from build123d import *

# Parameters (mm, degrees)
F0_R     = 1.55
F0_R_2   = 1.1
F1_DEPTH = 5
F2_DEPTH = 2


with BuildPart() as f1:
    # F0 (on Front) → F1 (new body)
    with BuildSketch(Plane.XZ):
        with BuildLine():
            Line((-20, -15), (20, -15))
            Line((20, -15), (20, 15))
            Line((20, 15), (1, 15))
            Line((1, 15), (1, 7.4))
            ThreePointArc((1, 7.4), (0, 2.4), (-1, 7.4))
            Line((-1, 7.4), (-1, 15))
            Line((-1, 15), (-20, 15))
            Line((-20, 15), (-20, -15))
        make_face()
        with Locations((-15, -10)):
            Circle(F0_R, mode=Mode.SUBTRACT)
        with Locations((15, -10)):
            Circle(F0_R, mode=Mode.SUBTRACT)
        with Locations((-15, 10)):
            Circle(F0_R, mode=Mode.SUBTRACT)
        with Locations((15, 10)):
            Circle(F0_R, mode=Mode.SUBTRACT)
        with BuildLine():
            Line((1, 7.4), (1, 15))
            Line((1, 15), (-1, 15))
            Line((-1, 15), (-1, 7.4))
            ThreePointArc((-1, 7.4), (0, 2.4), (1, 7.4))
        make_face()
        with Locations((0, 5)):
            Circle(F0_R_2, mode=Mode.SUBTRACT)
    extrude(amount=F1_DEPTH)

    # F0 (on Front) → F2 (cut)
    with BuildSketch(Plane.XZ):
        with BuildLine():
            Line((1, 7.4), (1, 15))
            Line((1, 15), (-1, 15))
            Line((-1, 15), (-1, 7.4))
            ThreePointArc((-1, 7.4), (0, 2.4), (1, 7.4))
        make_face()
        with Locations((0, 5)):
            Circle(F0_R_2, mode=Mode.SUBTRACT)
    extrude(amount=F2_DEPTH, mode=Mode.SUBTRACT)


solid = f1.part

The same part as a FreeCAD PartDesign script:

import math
import FreeCAD as App
import Part
import Sketcher
from FreeCAD import Vector
Q = App.Units.Quantity


def add_polygon(sketch, points):
    """Adds a closed chain of lines whose ends are joined by coincident constraints."""
    first, n = sketch.GeometryCount, len(points)
    for a, b in zip(points, points[1:] + points[:1]):
        sketch.addGeometry(Part.LineSegment(App.Vector(*a, 0), App.Vector(*b, 0)), False)
    for i in range(n):
        sketch.addConstraint(Sketcher.Constraint("Coincident", first + i, 2, first + (i + 1) % n, 1))

doc = App.newDocument("Part")
params = doc.addObject("Spreadsheet::Sheet", "Params")
for row, (alias, value) in enumerate([
    ("sketch1_diameter", "3.1 mm"),
    ("sketch1_diameter2", "2.2 mm"),
    ("sketch1_width", "40 mm"),
    ("sketch1_height", "30 mm"),
    ("pad1_length", "5 mm"),
    ("sketch2_diameter", "2.2 mm"),
    ("sketch2_radius", "2.6 mm"),
    ("sketch2_width", "2 mm"),
    ("sketch2_height", "7.6 mm"),
    ("pocket1_length", "2 mm"),
], start=1):
    params.set(f"A{row}", alias)
    params.set(f"B{row}", "=" + value)
    params.setAlias(f"B{row}", alias)

body = doc.addObject("PartDesign::Body", "Body")

# Sketch on XZ plane
sketch1 = body.newObject("Sketcher::SketchObject", "Sketch")
sketch1.AttachmentSupport = (doc.getObject("XZ_Plane"), [""])
sketch1.MapMode = "FlatFace"
add_polygon(sketch1, [(-20, -15), (20, -15), (20, 15), (-20, 15)])  # lines 0-3
sketch1.addGeometry(Part.Circle(Vector(-15, -10, 0), Vector(0, 0, 1), 1.55), False)  # 4
sketch1.addGeometry(Part.Circle(Vector(15, -10, 0), Vector(0, 0, 1), 1.55), False)  # 5
sketch1.addGeometry(Part.Circle(Vector(-15, 10, 0), Vector(0, 0, 1), 1.55), False)  # 6
sketch1.addGeometry(Part.Circle(Vector(0, 5, 0), Vector(0, 0, 1), 1.1), False)  # 7
sketch1.addGeometry(Part.Circle(Vector(15, 10, 0), Vector(0, 0, 1), 1.55), False)  # 8
sketch1.addConstraint(Sketcher.Constraint("Horizontal", 0))
sketch1.addConstraint(Sketcher.Constraint("Vertical", 1))
sketch1.addConstraint(Sketcher.Constraint("Horizontal", 2))
sketch1.addConstraint(Sketcher.Constraint("Vertical", 3))
sketch1.addConstraint(Sketcher.Constraint("Equal", 4, 5))
sketch1.addConstraint(Sketcher.Constraint("Equal", 5, 6))
sketch1.addConstraint(Sketcher.Constraint("Equal", 6, 8))
sketch1.addConstraint(Sketcher.Constraint("Symmetric", 5, 3, 6, 3, -1, 1))
sketch1.addConstraint(Sketcher.Constraint("Symmetric", 4, 3, 8, 3, -1, 1))
sketch1.addConstraint(Sketcher.Constraint("Symmetric", 0, 2, 2, 2, -1, 1))
sketch1.addConstraint(Sketcher.Constraint("Symmetric", 4, 3, 5, 3, -2))
sketch1.addConstraint(Sketcher.Constraint("PointOnObject", 7, 3, -2))
sketch1.addConstraint(Sketcher.Constraint("Diameter", 4, Q("3.1 mm")))
sketch1.addConstraint(Sketcher.Constraint("Diameter", 7, Q("2.2 mm")))
sketch1.addConstraint(Sketcher.Constraint("DistanceX", 0, 1, 0, 2, Q("40 mm")))
sketch1.addConstraint(Sketcher.Constraint("DistanceY", 1, 1, 1, 2, Q("30 mm")))
sketch1.addConstraint(Sketcher.Constraint("DistanceX", 4, 3, -1, 1, Q("15 mm")))
sketch1.addConstraint(Sketcher.Constraint("DistanceY", 4, 3, -1, 1, Q("10 mm")))
sketch1.addConstraint(Sketcher.Constraint("DistanceY", -1, 1, 7, 3, Q("5 mm")))
sketch1.setExpression("Constraints[16]", "Params.sketch1_diameter")
sketch1.setExpression("Constraints[17]", "Params.sketch1_diameter2")
sketch1.setExpression("Constraints[18]", "Params.sketch1_width")
sketch1.setExpression("Constraints[19]", "Params.sketch1_height")
pad1 = body.newObject("PartDesign::Pad", "Pad")
pad1.Profile = sketch1
pad1.setExpression("Length", "Params.pad1_length")

# Sketch on XZ plane
sketch2 = body.newObject("Sketcher::SketchObject", "Sketch001")
sketch2.AttachmentSupport = (doc.getObject("XZ_Plane"), [""])
sketch2.MapMode = "FlatFace"
sketch2.addGeometry(Part.LineSegment(Vector(1, 7.4, 0), Vector(1, 15, 0)), False)
sketch2.addGeometry(Part.LineSegment(Vector(1, 15, 0), Vector(-1, 15, 0)), False)
sketch2.addGeometry(Part.LineSegment(Vector(-1, 15, 0), Vector(-1, 7.4, 0)), False)
sketch2.addGeometry(Part.ArcOfCircle(Part.Circle(Vector(0, 5, 0), Vector(0, 0, 1), 2.6), math.radians(112.619865), math.radians(427.380135)), False)
sketch2.addGeometry(Part.Circle(Vector(0, 5, 0), Vector(0, 0, 1), 1.1), False)
sketch2.addConstraint(Sketcher.Constraint("Coincident", 0, 2, 1, 1))
sketch2.addConstraint(Sketcher.Constraint("Coincident", 1, 2, 2, 1))
sketch2.addConstraint(Sketcher.Constraint("Coincident", 2, 2, 3, 1))
sketch2.addConstraint(Sketcher.Constraint("Coincident", 3, 2, 0, 1))
sketch2.addConstraint(Sketcher.Constraint("Vertical", 0))
sketch2.addConstraint(Sketcher.Constraint("Horizontal", 1))
sketch2.addConstraint(Sketcher.Constraint("Vertical", 2))
sketch2.addConstraint(Sketcher.Constraint("Coincident", 4, 3, 3, 3))
sketch2.addConstraint(Sketcher.Constraint("Symmetric", 2, 2, 3, 2, -2))
sketch2.addConstraint(Sketcher.Constraint("Diameter", 4, Q("2.2 mm")))
sketch2.addConstraint(Sketcher.Constraint("Radius", 3, Q("2.6 mm")))
sketch2.addConstraint(Sketcher.Constraint("DistanceX", 1, 2, 1, 1, Q("2 mm")))
sketch2.addConstraint(Sketcher.Constraint("DistanceY", 0, 1, 0, 2, Q("7.6 mm")))
sketch2.addConstraint(Sketcher.Constraint("DistanceY", -1, 1, 3, 3, Q("5 mm")))
sketch2.setExpression("Constraints[9]", "Params.sketch2_diameter")
sketch2.setExpression("Constraints[10]", "Params.sketch2_radius")
sketch2.setExpression("Constraints[11]", "Params.sketch2_width")
sketch2.setExpression("Constraints[12]", "Params.sketch2_height")
pocket1 = body.newObject("PartDesign::Pocket", "Pocket")
pocket1.Profile = sketch2
pocket1.setExpression("Length", "Params.pocket1_length")
pocket1.Reversed = True

doc.recompute()
